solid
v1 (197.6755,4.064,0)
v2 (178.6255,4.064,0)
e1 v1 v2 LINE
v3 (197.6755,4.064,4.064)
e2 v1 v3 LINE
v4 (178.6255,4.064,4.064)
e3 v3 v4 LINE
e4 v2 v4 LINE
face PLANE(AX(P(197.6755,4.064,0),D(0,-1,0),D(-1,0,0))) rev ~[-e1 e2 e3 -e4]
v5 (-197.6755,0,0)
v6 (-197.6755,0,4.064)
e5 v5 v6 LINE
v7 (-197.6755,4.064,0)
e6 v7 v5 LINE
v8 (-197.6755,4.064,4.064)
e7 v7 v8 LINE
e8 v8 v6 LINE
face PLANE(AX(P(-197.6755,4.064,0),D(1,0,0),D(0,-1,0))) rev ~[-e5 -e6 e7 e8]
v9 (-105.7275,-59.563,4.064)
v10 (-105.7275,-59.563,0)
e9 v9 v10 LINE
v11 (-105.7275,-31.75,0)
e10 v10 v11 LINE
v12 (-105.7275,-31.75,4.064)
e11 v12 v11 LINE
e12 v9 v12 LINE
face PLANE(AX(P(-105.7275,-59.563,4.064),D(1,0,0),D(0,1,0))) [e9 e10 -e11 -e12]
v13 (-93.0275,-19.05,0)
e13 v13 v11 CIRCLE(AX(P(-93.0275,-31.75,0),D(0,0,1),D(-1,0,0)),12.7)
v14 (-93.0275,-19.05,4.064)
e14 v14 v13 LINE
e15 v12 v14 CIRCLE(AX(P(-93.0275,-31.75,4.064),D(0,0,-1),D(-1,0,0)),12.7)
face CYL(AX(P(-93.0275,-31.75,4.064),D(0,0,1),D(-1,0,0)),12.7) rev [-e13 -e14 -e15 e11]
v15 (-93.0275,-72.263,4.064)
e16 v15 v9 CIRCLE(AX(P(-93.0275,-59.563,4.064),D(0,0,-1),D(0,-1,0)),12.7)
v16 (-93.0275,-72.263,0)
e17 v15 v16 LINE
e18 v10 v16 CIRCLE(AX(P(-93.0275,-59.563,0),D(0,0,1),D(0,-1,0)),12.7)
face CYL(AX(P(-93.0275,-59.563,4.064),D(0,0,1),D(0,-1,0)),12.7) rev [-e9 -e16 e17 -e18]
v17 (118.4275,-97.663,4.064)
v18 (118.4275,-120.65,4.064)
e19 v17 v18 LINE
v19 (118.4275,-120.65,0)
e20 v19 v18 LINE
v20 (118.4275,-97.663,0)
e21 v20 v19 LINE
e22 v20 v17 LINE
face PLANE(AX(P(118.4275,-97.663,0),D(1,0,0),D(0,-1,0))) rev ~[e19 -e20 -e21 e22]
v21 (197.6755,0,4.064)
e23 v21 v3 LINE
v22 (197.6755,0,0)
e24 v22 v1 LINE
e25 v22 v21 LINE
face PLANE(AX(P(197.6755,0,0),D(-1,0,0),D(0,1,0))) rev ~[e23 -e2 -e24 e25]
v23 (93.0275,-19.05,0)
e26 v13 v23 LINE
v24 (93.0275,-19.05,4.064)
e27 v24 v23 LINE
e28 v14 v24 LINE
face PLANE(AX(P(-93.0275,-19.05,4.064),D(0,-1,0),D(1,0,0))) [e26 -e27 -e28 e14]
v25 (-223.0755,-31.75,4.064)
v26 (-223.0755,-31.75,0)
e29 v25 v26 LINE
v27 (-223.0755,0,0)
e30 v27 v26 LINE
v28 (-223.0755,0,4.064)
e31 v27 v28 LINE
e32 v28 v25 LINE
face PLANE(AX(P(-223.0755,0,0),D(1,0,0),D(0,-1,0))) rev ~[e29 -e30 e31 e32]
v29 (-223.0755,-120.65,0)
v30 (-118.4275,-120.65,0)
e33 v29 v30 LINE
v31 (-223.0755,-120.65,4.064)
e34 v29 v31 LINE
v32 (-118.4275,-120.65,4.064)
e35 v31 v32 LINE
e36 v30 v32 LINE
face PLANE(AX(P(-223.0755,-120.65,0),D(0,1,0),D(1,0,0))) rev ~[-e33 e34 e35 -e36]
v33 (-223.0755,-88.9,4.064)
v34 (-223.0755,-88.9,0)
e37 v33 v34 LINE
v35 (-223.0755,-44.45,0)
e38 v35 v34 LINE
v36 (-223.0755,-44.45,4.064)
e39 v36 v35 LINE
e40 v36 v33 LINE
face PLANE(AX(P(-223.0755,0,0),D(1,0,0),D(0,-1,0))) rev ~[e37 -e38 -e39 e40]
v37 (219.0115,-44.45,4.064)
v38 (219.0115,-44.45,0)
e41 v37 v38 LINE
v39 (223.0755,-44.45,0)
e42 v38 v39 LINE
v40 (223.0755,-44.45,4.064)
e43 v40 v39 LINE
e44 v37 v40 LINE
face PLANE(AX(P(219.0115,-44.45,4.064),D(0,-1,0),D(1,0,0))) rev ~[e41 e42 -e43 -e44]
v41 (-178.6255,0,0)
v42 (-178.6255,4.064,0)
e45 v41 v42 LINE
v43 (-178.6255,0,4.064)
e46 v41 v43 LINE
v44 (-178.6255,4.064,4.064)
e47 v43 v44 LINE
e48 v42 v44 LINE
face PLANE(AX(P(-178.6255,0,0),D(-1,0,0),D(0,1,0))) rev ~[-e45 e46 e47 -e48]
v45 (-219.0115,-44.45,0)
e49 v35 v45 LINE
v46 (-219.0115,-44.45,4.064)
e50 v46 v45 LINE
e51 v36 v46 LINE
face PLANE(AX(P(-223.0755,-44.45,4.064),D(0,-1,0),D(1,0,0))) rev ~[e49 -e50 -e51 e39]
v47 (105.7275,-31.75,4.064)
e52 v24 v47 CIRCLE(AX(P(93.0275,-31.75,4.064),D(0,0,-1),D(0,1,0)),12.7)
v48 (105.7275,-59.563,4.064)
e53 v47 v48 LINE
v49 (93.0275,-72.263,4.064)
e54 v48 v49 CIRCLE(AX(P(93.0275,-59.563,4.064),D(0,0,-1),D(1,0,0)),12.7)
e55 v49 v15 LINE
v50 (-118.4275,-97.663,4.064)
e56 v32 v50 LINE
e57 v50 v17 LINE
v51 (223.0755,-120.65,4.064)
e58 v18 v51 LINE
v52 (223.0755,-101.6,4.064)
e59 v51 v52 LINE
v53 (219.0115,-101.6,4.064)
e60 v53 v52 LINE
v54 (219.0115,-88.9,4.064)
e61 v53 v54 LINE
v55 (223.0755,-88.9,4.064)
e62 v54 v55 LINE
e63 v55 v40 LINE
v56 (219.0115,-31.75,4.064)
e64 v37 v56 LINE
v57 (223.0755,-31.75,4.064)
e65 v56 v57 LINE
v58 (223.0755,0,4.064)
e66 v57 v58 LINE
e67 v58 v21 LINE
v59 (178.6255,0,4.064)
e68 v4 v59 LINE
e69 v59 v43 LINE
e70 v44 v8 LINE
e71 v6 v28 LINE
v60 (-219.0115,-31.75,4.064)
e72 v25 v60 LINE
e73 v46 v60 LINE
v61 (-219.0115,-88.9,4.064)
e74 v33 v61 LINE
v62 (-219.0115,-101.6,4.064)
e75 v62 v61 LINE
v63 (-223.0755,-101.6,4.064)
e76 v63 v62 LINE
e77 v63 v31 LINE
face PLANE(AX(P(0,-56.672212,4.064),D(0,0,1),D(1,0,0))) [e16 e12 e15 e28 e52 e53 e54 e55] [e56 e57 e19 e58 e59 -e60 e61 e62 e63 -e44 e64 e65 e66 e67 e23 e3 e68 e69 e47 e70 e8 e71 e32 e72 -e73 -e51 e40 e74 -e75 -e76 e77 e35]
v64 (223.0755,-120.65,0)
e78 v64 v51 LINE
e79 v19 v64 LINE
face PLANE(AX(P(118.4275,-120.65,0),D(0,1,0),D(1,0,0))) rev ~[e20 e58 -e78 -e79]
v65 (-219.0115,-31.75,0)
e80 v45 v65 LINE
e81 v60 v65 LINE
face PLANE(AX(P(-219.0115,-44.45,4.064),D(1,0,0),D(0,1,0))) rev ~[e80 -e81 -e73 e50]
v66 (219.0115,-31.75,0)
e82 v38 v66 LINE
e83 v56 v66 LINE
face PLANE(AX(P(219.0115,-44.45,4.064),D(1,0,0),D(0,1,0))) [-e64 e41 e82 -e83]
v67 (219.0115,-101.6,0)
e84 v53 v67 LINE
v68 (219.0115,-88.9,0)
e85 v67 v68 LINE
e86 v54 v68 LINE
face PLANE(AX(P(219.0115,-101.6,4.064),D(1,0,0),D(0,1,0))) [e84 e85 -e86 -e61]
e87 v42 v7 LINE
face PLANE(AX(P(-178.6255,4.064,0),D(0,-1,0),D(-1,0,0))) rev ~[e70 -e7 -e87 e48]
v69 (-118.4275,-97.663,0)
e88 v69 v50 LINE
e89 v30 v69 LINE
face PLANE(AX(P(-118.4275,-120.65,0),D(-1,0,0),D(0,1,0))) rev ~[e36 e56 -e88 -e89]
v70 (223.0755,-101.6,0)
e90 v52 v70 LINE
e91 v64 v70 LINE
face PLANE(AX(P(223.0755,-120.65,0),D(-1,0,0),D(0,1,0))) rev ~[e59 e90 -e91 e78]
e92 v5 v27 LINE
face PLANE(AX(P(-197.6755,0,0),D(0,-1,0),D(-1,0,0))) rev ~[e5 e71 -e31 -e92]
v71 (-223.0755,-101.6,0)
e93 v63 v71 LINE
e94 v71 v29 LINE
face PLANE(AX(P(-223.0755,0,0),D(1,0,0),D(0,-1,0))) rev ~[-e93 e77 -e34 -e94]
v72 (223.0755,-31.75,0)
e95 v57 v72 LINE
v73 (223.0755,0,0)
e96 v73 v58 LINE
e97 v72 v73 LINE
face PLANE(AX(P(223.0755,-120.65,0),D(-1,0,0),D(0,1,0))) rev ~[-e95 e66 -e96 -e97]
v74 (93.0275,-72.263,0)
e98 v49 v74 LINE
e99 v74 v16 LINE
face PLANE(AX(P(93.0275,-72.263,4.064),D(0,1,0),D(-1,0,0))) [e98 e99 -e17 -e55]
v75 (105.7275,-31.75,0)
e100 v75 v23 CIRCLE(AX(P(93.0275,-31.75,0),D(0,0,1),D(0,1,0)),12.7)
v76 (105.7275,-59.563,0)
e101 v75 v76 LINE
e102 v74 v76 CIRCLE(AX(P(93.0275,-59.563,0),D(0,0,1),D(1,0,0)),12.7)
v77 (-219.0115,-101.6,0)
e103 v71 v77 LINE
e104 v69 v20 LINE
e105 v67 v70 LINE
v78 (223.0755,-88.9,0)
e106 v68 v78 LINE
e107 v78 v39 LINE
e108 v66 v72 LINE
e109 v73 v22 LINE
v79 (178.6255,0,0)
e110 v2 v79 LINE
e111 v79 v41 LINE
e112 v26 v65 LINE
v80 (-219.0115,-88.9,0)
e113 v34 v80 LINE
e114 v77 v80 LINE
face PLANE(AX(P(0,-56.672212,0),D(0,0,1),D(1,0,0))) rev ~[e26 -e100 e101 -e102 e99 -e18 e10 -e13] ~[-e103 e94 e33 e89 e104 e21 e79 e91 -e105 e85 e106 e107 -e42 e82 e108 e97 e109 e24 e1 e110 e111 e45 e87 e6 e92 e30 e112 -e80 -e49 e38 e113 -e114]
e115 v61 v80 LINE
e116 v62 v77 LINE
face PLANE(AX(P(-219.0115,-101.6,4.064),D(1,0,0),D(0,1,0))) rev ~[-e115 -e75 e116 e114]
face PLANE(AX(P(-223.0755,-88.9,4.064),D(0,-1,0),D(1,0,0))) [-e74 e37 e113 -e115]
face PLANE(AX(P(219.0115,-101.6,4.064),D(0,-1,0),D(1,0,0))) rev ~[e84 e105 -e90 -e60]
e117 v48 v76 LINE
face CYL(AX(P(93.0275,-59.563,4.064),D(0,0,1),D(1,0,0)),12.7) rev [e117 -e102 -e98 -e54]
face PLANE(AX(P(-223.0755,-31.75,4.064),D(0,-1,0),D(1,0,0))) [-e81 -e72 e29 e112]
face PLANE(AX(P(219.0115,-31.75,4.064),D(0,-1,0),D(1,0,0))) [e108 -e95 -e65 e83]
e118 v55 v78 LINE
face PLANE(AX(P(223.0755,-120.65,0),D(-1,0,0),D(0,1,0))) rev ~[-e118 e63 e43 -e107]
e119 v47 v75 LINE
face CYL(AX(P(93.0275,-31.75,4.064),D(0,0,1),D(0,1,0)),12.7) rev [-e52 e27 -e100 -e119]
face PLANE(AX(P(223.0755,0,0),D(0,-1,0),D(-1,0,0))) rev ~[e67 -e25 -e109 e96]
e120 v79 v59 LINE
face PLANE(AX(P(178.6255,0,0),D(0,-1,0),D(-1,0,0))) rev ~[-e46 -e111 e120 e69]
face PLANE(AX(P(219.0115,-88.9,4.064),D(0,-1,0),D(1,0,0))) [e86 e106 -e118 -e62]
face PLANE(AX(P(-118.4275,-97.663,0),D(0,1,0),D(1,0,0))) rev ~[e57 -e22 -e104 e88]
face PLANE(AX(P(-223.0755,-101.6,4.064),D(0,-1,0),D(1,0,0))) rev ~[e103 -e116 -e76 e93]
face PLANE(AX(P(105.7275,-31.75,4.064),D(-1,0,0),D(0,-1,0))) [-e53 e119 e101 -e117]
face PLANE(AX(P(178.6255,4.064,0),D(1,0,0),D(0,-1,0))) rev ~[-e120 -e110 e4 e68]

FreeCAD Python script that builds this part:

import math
import FreeCAD as App
import Part
import Sketcher
from FreeCAD import Vector
Q = App.Units.Quantity

doc = App.newDocument("Part")
body = doc.addObject("PartDesign::Body", "Body")

sketch1 = doc.addObject("Sketcher::SketchObject", "Sketch")
body.addObject(sketch1)
sketch1.AttachmentSupport = (doc.XY_Plane, [""])
sketch1.MapMode = "FlatFace"
sketch1.addGeometry(Part.LineSegment(Vector(-118.4, -120.7, 0), Vector(-118.4, -97.7, 0)), False)
sketch1.addGeometry(Part.LineSegment(Vector(-118.4, -97.7, 0), Vector(118.4, -97.7, 0)), False)
sketch1.addGeometry(Part.LineSegment(Vector(118.4, -97.7, 0), Vector(118.4, -120.7, 0)), False)
sketch1.addGeometry(Part.LineSegment(Vector(118.4, -120.7, 0), Vector(223.1, -120.7, 0)), False)
sketch1.addGeometry(Part.LineSegment(Vector(223.1, -120.7, 0), Vector(223.1, 0, 0)), False)
sketch1.addGeometry(Part.LineSegment(Vector(223.1, 0, 0), Vector(197.7, 0, 0)), False)
sketch1.addGeometry(Part.LineSegment(Vector(197.7, 0, 0), Vector(197.7, 4.1, 0)), False)
sketch1.addGeometry(Part.LineSegment(Vector(197.7, 4.1, 0), Vector(178.6, 4.1, 0)), False)
sketch1.addGeometry(Part.LineSegment(Vector(178.6, 4.1, 0), Vector(178.6, 0, 0)), False)
sketch1.addGeometry(Part.LineSegment(Vector(178.6, 0, 0), Vector(-178.6, 0, 0)), False)
sketch1.addGeometry(Part.LineSegment(Vector(-178.6, 0, 0), Vector(-178.6, 4.1, 0)), False)
sketch1.addGeometry(Part.LineSegment(Vector(-178.6, 4.1, 0), Vector(-197.7, 4.1, 0)), False)
sketch1.addGeometry(Part.LineSegment(Vector(-197.7, 4.1, 0), Vector(-197.7, 0, 0)), False)
sketch1.addGeometry(Part.LineSegment(Vector(-197.7, 0, 0), Vector(-223.1, 0, 0)), False)
sketch1.addGeometry(Part.LineSegment(Vector(-223.1, 0, 0), Vector(-223.1, -120.7, 0)), False)
sketch1.addGeometry(Part.LineSegment(Vector(-223.1, -120.7, 0), Vector(-118.4, -120.7, 0)), False)
sketch1.addConstraint(Sketcher.Constraint("Coincident", 0, 2, 1, 1))
sketch1.addConstraint(Sketcher.Constraint("Coincident", 1, 2, 2, 1))
sketch1.addConstraint(Sketcher.Constraint("Coincident", 2, 2, 3, 1))
sketch1.addConstraint(Sketcher.Constraint("Coincident", 3, 2, 4, 1))
sketch1.addConstraint(Sketcher.Constraint("Coincident", 4, 2, 5, 1))
sketch1.addConstraint(Sketcher.Constraint("Coincident", 5, 2, 6, 1))
sketch1.addConstraint(Sketcher.Constraint("Coincident", 6, 2, 7, 1))
sketch1.addConstraint(Sketcher.Constraint("Coincident", 7, 2, 8, 1))
sketch1.addConstraint(Sketcher.Constraint("Coincident", 8, 2, 9, 1))
sketch1.addConstraint(Sketcher.Constraint("Coincident", 9, 2, 10, 1))
sketch1.addConstraint(Sketcher.Constraint("Coincident", 10, 2, 11, 1))
sketch1.addConstraint(Sketcher.Constraint("Coincident", 11, 2, 12, 1))
sketch1.addConstraint(Sketcher.Constraint("Coincident", 12, 2, 13, 1))
sketch1.addConstraint(Sketcher.Constraint("Coincident", 13, 2, 14, 1))
sketch1.addConstraint(Sketcher.Constraint("Coincident", 14, 2, 15, 1))
sketch1.addConstraint(Sketcher.Constraint("Coincident", 15, 2, 0, 1))
sketch1.addConstraint(Sketcher.Constraint("Vertical", 0))
sketch1.addConstraint(Sketcher.Constraint("Horizontal", 1))
sketch1.addConstraint(Sketcher.Constraint("Vertical", 2))
sketch1.addConstraint(Sketcher.Constraint("Horizontal", 3))
sketch1.addConstraint(Sketcher.Constraint("Vertical", 4))
sketch1.addConstraint(Sketcher.Constraint("Horizontal", 5))
sketch1.addConstraint(Sketcher.Constraint("Vertical", 6))
sketch1.addConstraint(Sketcher.Constraint("Horizontal", 7))
sketch1.addConstraint(Sketcher.Constraint("Vertical", 8))
sketch1.addConstraint(Sketcher.Constraint("Horizontal", 9))
sketch1.addConstraint(Sketcher.Constraint("Vertical", 10))
sketch1.addConstraint(Sketcher.Constraint("Horizontal", 11))
sketch1.addConstraint(Sketcher.Constraint("Vertical", 12))
sketch1.addConstraint(Sketcher.Constraint("Horizontal", 13))
sketch1.addConstraint(Sketcher.Constraint("Vertical", 14))
sketch1.addConstraint(Sketcher.Constraint("Horizontal", 15))
sketch1.addConstraint(Sketcher.Constraint("Symmetric", 8, 2, 9, 2, -1, 1))
sketch1.addConstraint(Sketcher.Constraint("Symmetric", 5, 2, 12, 2, -1, 1))
sketch1.addConstraint(Sketcher.Constraint("Symmetric", 4, 2, 13, 2, -2))
sketch1.addConstraint(Sketcher.Constraint("Symmetric", 2, 2, 15, 2, -2))
sketch1.addConstraint(Sketcher.Constraint("Horizontal", 7, 2, 10, 2))
sketch1.addConstraint(Sketcher.Constraint("DistanceX", 5, 2, 5, 1, Q("1 in")))
sketch1.addConstraint(Sketcher.Constraint("DistanceX", 3, 1, 3, 2, Q("4.12 in")))
sketch1.addConstraint(Sketcher.Constraint("DistanceX", 7, 2, 7, 1, Q("0.75 in")))
sketch1.addConstraint(Sketcher.Constraint("DistanceY", 4, 1, 4, 2, Q("4.75 in")))
sketch1.addConstraint(Sketcher.Constraint("DistanceY", 6, 1, 6, 2, Q("0.16 in")))
sketch1.addConstraint(Sketcher.Constraint("DistanceX", 1, 1, 1, 2, Q("9.325 in")))
sketch1.addConstraint(Sketcher.Constraint("DistanceY", 0, 1, 0, 2, Q("0.905 in")))
pad1 = doc.addObject("PartDesign::Pad", "Pad")
body.addObject(pad1)
pad1.Profile = sketch1
pad1.Length = Q("0.16 in")

sketch2 = doc.addObject("Sketcher::SketchObject", "Sketch001")
body.addObject(sketch2)
sketch2.AttachmentSupport = (doc.XY_Plane, [""])
sketch2.MapMode = "FlatFace"
sketch2.AttachmentOffset = App.Placement(Vector(0, 0, 0.16 * 25.4), App.Rotation())
sketch2.addGeometry(Part.LineSegment(Vector(-223.1, -31.8, 0), Vector(-223.1, -44.5, 0)), False)
sketch2.addGeometry(Part.LineSegment(Vector(-223.1, -44.5, 0), Vector(-219, -44.5, 0)), False)
sketch2.addGeometry(Part.LineSegment(Vector(-219, -44.5, 0), Vector(-219, -31.8, 0)), False)
sketch2.addGeometry(Part.LineSegment(Vector(-219, -31.8, 0), Vector(-223.1, -31.8, 0)), False)
sketch2.addGeometry(Part.LineSegment(Vector(-223.1, -88.9, 0), Vector(-223.1, -101.6, 0)), False)
sketch2.addGeometry(Part.LineSegment(Vector(-223.1, -101.6, 0), Vector(-219, -101.6, 0)), False)
sketch2.addGeometry(Part.LineSegment(Vector(-219, -101.6, 0), Vector(-219, -88.9, 0)), False)
sketch2.addGeometry(Part.LineSegment(Vector(-219, -88.9, 0), Vector(-223.1, -88.9, 0)), False)
sketch2.addGeometry(Part.LineSegment(Vector(219, -88.9, 0), Vector(219, -101.6, 0)), False)
sketch2.addGeometry(Part.LineSegment(Vector(219, -101.6, 0), Vector(223.1, -101.6, 0)), False)
sketch2.addGeometry(Part.LineSegment(Vector(223.1, -101.6, 0), Vector(223.1, -88.9, 0)), False)
sketch2.addGeometry(Part.LineSegment(Vector(223.1, -88.9, 0), Vector(219, -88.9, 0)), False)
sketch2.addGeometry(Part.LineSegment(Vector(219, -31.8, 0), Vector(219, -44.5, 0)), False)
sketch2.addGeometry(Part.LineSegment(Vector(219, -44.5, 0), Vector(223.1, -44.5, 0)), False)
sketch2.addGeometry(Part.LineSegment(Vector(223.1, -44.5, 0), Vector(223.1, -31.8, 0)), False)
sketch2.addGeometry(Part.LineSegment(Vector(223.1, -31.8, 0), Vector(219, -31.8, 0)), False)
sketch2.addConstraint(Sketcher.Constraint("Coincident", 0, 2, 1, 1))
sketch2.addConstraint(Sketcher.Constraint("Coincident", 1, 2, 2, 1))
sketch2.addConstraint(Sketcher.Constraint("Coincident", 2, 2, 3, 1))
sketch2.addConstraint(Sketcher.Constraint("Coincident", 3, 2, 0, 1))
sketch2.addConstraint(Sketcher.Constraint("Coincident", 4, 2, 5, 1))
sketch2.addConstraint(Sketcher.Constraint("Coincident", 5, 2, 6, 1))
sketch2.addConstraint(Sketcher.Constraint("Coincident", 6, 2, 7, 1))
sketch2.addConstraint(Sketcher.Constraint("Coincident", 7, 2, 4, 1))
sketch2.addConstraint(Sketcher.Constraint("Coincident", 8, 2, 9, 1))
sketch2.addConstraint(Sketcher.Constraint("Coincident", 9, 2, 10, 1))
sketch2.addConstraint(Sketcher.Constraint("Coincident", 10, 2, 11, 1))
sketch2.addConstraint(Sketcher.Constraint("Coincident", 11, 2, 8, 1))
sketch2.addConstraint(Sketcher.Constraint("Coincident", 12, 2, 13, 1))
sketch2.addConstraint(Sketcher.Constraint("Coincident", 13, 2, 14, 1))
sketch2.addConstraint(Sketcher.Constraint("Coincident", 14, 2, 15, 1))
sketch2.addConstraint(Sketcher.Constraint("Coincident", 15, 2, 12, 1))
sketch2.addConstraint(Sketcher.Constraint("Vertical", 0))
sketch2.addConstraint(Sketcher.Constraint("Horizontal", 1))
sketch2.addConstraint(Sketcher.Constraint("Vertical", 2))
sketch2.addConstraint(Sketcher.Constraint("Horizontal", 3))
sketch2.addConstraint(Sketcher.Constraint("Vertical", 4))
sketch2.addConstraint(Sketcher.Constraint("Horizontal", 5))
sketch2.addConstraint(Sketcher.Constraint("Vertical", 6))
sketch2.addConstraint(Sketcher.Constraint("Horizontal", 7))
sketch2.addConstraint(Sketcher.Constraint("Vertical", 8))
sketch2.addConstraint(Sketcher.Constraint("Horizontal", 9))
sketch2.addConstraint(Sketcher.Constraint("Vertical", 10))
sketch2.addConstraint(Sketcher.Constraint("Horizontal", 11))
sketch2.addConstraint(Sketcher.Constraint("Vertical", 12))
sketch2.addConstraint(Sketcher.Constraint("Horizontal", 13))
sketch2.addConstraint(Sketcher.Constraint("Vertical", 14))
sketch2.addConstraint(Sketcher.Constraint("Horizontal", 15))
sketch2.addConstraint(Sketcher.Constraint("Symmetric", 5, 2, 8, 2, -2))
sketch2.addConstraint(Sketcher.Constraint("Symmetric", 7, 2, 10, 2, -2))
sketch2.addConstraint(Sketcher.Constraint("Symmetric", 1, 2, 12, 2, -2))
sketch2.addConstraint(Sketcher.Constraint("Symmetric", 3, 2, 14, 2, -2))
sketch2.addConstraint(Sketcher.Constraint("Vertical", 3, 2, 4, 2))
sketch2.addConstraint(Sketcher.Constraint("Vertical", 2, 2, 5, 2))
sketch2.addConstraint(Sketcher.Constraint("Equal", 2, 4))
sketch2.addConstraint(Sketcher.Constraint("DistanceY", 0, 2, 0, 1, Q("0.5 in")))
sketch2.addConstraint(Sketcher.Constraint("DistanceY", 4, 2, -1, 1, Q("4 in")))
sketch2.addConstraint(Sketcher.Constraint("DistanceX", 1, 1, 1, 2, Q("0.16 in")))
sketch2.addConstraint(Sketcher.Constraint("DistanceY", 0, 2, -1, 1, Q("1.75 in")))
sketch2.addConstraint(Sketcher.Constraint("DistanceX", 5, 2, 8, 2, Q("17.245 in")))
pocket1 = doc.addObject("PartDesign::Pocket", "Pocket")
body.addObject(pocket1)
pocket1.Profile = sketch2
pocket1.Type = "ThroughAll"

sketch3 = doc.addObject("Sketcher::SketchObject", "Sketch002")
body.addObject(sketch3)
sketch3.AttachmentSupport = (doc.XY_Plane, [""])
sketch3.MapMode = "FlatFace"
sketch3.AttachmentOffset = App.Placement(Vector(0, 0, 0.16 * 25.4), App.Rotation())
sketch3.addGeometry(Part.LineSegment(Vector(93, -19, 0), Vector(-93, -19, 0)), False)
sketch3.addGeometry(Part.ArcOfCircle(Part.Circle(Vector(-93, -32, 0), Vector(0, 0, 1), 13), math.radians(90), math.radians(180)), False)
sketch3.addGeometry(Part.LineSegment(Vector(-106, -32, 0), Vector(-106, -60, 0)), False)
sketch3.addGeometry(Part.ArcOfCircle(Part.Circle(Vector(-93, -60, 0), Vector(0, 0, 1), 13), math.radians(180), math.radians(270)), False)
sketch3.addGeometry(Part.LineSegment(Vector(-93, -72, 0), Vector(93, -72, 0)), False)
sketch3.addGeometry(Part.ArcOfCircle(Part.Circle(Vector(93, -60, 0), Vector(0, 0, 1), 13), math.radians(-90), math.radians(0)), False)
sketch3.addGeometry(Part.LineSegment(Vector(106, -60, 0), Vector(106, -32, 0)), False)
sketch3.addGeometry(Part.ArcOfCircle(Part.Circle(Vector(93, -32, 0), Vector(0, 0, 1), 13), math.radians(0), math.radians(90)), False)
sketch3.addConstraint(Sketcher.Constraint("Tangent", 0, 2, 1, 1))
sketch3.addConstraint(Sketcher.Constraint("Tangent", 1, 2, 2, 1))
sketch3.addConstraint(Sketcher.Constraint("Tangent", 2, 2, 3, 1))
sketch3.addConstraint(Sketcher.Constraint("Tangent", 3, 2, 4, 1))
sketch3.addConstraint(Sketcher.Constraint("Tangent", 4, 2, 5, 1))
sketch3.addConstraint(Sketcher.Constraint("Tangent", 5, 2, 6, 1))
sketch3.addConstraint(Sketcher.Constraint("Tangent", 6, 2, 7, 1))
sketch3.addConstraint(Sketcher.Constraint("Tangent", 7, 2, 0, 1))
sketch3.addConstraint(Sketcher.Constraint("Horizontal", 0))
sketch3.addConstraint(Sketcher.Constraint("Vertical", 2))
sketch3.addConstraint(Sketcher.Constraint("Horizontal", 4))
sketch3.addConstraint(Sketcher.Constraint("Vertical", 6))
sketch3.addConstraint(Sketcher.Constraint("Equal", 1, 3))
sketch3.addConstraint(Sketcher.Constraint("Equal", 3, 5))
sketch3.addConstraint(Sketcher.Constraint("Equal", 5, 7))
sketch3.addConstraint(Sketcher.Constraint("Radius", 1, Q("0.5 in")))
sketch3.addConstraint(Sketcher.Constraint("DistanceX", 0, 2, 0, 1, Q("7.325 in")))
sketch3.addConstraint(Sketcher.Constraint("DistanceY", 2, 2, 2, 1, Q("1.095 in")))
sketch3.addConstraint(Sketcher.Constraint("DistanceY", 1, 3, -1, 1, Q("1.25 in")))
sketch3.addConstraint(Sketcher.Constraint("DistanceX", 1, 3, -1, 1, Q("3.6625 in")))
pocket2 = doc.addObject("PartDesign::Pocket", "Pocket001")
body.addObject(pocket2)
pocket2.Profile = sketch3
pocket2.Type = "ThroughAll"

doc.recompute()
